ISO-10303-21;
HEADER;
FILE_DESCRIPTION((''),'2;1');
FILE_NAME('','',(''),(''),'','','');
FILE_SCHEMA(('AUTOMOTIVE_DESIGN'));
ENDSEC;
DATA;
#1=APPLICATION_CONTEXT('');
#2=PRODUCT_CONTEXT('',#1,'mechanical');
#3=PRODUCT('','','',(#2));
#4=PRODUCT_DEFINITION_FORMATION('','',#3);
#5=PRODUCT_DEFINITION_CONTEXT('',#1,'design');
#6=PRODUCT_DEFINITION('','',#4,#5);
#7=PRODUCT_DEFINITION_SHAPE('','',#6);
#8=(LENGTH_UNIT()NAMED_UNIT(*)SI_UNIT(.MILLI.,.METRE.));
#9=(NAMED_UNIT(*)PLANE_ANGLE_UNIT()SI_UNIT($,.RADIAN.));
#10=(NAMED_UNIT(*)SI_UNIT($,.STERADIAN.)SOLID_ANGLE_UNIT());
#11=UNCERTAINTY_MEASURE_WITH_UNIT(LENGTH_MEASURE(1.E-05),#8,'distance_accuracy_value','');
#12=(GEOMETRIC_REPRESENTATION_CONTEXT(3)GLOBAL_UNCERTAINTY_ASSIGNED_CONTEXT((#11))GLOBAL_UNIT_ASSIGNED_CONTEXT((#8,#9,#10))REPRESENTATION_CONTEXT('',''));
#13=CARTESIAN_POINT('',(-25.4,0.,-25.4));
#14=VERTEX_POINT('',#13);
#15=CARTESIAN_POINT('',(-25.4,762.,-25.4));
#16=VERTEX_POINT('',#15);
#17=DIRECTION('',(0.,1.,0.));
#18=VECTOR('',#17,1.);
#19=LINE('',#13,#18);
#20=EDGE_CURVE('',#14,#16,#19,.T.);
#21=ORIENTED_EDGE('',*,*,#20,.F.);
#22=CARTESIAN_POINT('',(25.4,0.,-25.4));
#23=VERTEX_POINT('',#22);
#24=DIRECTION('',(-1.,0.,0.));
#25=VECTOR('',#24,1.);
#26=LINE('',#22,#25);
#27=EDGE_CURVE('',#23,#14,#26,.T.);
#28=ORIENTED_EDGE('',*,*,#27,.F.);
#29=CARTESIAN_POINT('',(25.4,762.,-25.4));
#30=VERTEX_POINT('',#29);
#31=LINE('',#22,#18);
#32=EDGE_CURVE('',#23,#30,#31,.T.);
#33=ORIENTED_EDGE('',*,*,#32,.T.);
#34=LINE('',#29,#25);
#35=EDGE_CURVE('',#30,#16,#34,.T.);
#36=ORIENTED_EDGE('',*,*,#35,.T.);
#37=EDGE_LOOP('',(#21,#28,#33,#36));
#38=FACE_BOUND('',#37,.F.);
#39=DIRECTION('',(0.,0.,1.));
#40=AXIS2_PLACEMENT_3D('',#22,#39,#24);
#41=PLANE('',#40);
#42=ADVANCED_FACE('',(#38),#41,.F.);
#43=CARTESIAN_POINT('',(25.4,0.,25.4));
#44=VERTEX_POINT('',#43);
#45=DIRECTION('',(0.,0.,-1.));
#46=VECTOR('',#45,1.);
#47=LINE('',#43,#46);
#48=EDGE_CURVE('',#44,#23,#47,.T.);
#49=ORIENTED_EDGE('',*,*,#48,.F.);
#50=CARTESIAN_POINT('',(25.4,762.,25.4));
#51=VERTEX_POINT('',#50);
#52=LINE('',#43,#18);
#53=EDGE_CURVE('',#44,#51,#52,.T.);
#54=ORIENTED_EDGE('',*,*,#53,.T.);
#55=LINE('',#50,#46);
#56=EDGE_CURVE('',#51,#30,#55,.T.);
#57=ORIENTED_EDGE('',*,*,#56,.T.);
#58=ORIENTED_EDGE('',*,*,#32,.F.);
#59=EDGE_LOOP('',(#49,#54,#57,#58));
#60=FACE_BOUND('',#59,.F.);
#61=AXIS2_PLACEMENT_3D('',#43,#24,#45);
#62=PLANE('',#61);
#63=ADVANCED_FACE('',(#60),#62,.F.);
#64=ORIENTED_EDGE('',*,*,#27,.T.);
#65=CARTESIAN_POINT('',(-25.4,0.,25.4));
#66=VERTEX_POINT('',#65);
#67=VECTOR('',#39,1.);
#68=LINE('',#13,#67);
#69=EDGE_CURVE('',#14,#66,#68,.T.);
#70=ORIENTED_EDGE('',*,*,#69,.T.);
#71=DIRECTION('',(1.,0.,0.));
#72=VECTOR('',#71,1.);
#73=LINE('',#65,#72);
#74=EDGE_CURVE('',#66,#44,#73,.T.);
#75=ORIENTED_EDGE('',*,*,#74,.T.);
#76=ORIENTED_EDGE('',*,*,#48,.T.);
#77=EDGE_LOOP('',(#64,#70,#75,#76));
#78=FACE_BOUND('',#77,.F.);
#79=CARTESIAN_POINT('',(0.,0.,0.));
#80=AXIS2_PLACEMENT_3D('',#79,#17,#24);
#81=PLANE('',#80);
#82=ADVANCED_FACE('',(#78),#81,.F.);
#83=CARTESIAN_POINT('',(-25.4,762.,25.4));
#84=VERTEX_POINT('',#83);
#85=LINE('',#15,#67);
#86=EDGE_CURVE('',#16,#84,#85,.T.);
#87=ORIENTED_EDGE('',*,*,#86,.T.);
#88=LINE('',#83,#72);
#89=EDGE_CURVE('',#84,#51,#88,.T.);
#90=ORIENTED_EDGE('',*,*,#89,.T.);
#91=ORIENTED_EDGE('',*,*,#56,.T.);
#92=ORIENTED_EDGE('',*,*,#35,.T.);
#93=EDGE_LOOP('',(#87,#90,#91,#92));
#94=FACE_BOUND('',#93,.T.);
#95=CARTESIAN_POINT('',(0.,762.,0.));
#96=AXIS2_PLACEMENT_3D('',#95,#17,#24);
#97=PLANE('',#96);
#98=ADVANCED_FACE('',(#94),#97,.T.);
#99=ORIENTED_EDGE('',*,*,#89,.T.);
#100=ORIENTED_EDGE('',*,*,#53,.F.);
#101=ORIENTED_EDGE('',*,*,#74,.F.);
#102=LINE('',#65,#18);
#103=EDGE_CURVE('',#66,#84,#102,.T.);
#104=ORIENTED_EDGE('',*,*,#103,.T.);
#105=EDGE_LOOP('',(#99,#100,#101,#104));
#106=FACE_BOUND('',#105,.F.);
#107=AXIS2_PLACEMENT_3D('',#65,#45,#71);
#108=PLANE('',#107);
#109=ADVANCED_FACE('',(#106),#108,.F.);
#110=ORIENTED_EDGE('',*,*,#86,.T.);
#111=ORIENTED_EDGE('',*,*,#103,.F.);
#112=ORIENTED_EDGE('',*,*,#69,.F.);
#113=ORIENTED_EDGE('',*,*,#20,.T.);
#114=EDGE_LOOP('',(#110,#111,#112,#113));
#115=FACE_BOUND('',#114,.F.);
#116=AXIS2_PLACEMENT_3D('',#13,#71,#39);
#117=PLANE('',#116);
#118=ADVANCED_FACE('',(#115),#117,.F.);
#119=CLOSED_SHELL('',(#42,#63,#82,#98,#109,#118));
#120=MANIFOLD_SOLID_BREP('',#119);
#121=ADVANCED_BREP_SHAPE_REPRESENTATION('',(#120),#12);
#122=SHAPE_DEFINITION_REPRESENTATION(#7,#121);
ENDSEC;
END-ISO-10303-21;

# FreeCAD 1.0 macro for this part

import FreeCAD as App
import Part
import Sketcher

V = App.Vector
Q = App.Units.Quantity


def add_polygon(sketch, points):
    """Adds a closed chain of lines whose ends are joined by coincident constraints."""
    first, n = sketch.GeometryCount, len(points)
    for a, b in zip(points, points[1:] + points[:1]):
        sketch.addGeometry(Part.LineSegment(App.Vector(*a, 0), App.Vector(*b, 0)), False)
    for i in range(n):
        sketch.addConstraint(Sketcher.Constraint("Coincident", first + i, 2, first + (i + 1) % n, 1))

doc = App.newDocument("Part")
body = doc.addObject("PartDesign::Body", "Body")

# Sketch on XZ plane
sketch1 = doc.addObject("Sketcher::SketchObject", "Sketch")
body.addObject(sketch1)
sketch1.AttachmentSupport = (doc.XZ_Plane, [""])
sketch1.MapMode = "FlatFace"
add_polygon(sketch1, [(-25, -25), (-25, 25), (25, 25), (25, -25)])  # lines 0-3
sketch1.addConstraint([
    Sketcher.Constraint("Vertical", 0),
    Sketcher.Constraint("Horizontal", 1),
    Sketcher.Constraint("Vertical", 2),
    Sketcher.Constraint("Horizontal", 3),
    Sketcher.Constraint("Symmetric", 0, 2, 2, 2, -1, 1),
    Sketcher.Constraint("Equal", 3, 0),
    Sketcher.Constraint("DistanceX", 1, 1, 1, 2, Q("2 in")),
])
pad1 = doc.addObject("PartDesign::Pad", "Pad")
body.addObject(pad1)
pad1.Profile = sketch1
pad1.Length = Q("30 in")
pad1.Reversed = True

doc.recompute()
